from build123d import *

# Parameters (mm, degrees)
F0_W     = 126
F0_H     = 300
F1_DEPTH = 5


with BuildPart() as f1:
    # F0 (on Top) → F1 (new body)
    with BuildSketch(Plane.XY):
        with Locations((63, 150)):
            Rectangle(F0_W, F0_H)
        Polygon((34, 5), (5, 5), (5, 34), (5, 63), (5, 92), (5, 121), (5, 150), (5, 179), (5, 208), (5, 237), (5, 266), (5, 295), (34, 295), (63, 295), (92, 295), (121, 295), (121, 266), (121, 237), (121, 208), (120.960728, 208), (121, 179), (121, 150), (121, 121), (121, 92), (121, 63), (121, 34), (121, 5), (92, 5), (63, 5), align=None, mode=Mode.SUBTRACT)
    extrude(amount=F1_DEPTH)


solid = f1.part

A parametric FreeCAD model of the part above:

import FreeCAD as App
import Part
import Sketcher
from FreeCAD import Vector

doc = App.newDocument("Part")
body = doc.addObject("PartDesign::Body", "Body")

sketch1 = body.newObject("Sketcher::SketchObject", "Sketch")
sketch1.AttachmentSupport = (doc.getObject("XY_Plane"), [""])
sketch1.MapMode = "FlatFace"
sketch1.addGeometry(Part.LineSegment(Vector(0, 300, 0), Vector(0, 0, 0)), False)
sketch1.addGeometry(Part.LineSegment(Vector(0, 0, 0), Vector(126, 0, 0)), False)
sketch1.addGeometry(Part.LineSegment(Vector(126, 0, 0), Vector(126, 300, 0)), False)
sketch1.addGeometry(Part.LineSegment(Vector(126, 300, 0), Vector(0, 300, 0)), False)
sketch1.addGeometry(Part.LineSegment(Vector(121, 5, 0), Vector(5, 5, 0)), False)
sketch1.addGeometry(Part.LineSegment(Vector(5, 5, 0), Vector(5, 295, 0)), False)
sketch1.addGeometry(Part.LineSegment(Vector(5, 295, 0), Vector(121, 295, 0)), False)
sketch1.addGeometry(Part.LineSegment(Vector(121, 295, 0), Vector(121, 208, 0)), False)
sketch1.addGeometry(Part.LineSegment(Vector(121, 208, 0), Vector(120.960728, 208, 0)), False)
sketch1.addGeometry(Part.LineSegment(Vector(120.960728, 208, 0), Vector(121, 179, 0)), False)
sketch1.addGeometry(Part.LineSegment(Vector(121, 179, 0), Vector(121, 5, 0)), False)
sketch1.addConstraint(Sketcher.Constraint("Coincident", 0, 2, 1, 1))
sketch1.addConstraint(Sketcher.Constraint("Coincident", 1, 2, 2, 1))
sketch1.addConstraint(Sketcher.Constraint("Coincident", 2, 2, 3, 1))
sketch1.addConstraint(Sketcher.Constraint("Coincident", 3, 2, 0, 1))
sketch1.addConstraint(Sketcher.Constraint("Coincident", 4, 2, 5, 1))
sketch1.addConstraint(Sketcher.Constraint("Coincident", 5, 2, 6, 1))
sketch1.addConstraint(Sketcher.Constraint("Coincident", 6, 2, 7, 1))
sketch1.addConstraint(Sketcher.Constraint("Coincident", 7, 2, 8, 1))
sketch1.addConstraint(Sketcher.Constraint("Coincident", 8, 2, 9, 1))
sketch1.addConstraint(Sketcher.Constraint("Coincident", 9, 2, 10, 1))
sketch1.addConstraint(Sketcher.Constraint("Coincident", 10, 2, 4, 1))
sketch1.addConstraint(Sketcher.Constraint("Vertical", 0))
sketch1.addConstraint(Sketcher.Constraint("Horizontal", 1))
sketch1.addConstraint(Sketcher.Constraint("Vertical", 2))
sketch1.addConstraint(Sketcher.Constraint("Horizontal", 3))
sketch1.addConstraint(Sketcher.Constraint("Horizontal", 4))
sketch1.addConstraint(Sketcher.Constraint("Vertical", 5))
sketch1.addConstraint(Sketcher.Constraint("Horizontal", 6))
sketch1.addConstraint(Sketcher.Constraint("Vertical", 7))
sketch1.addConstraint(Sketcher.Constraint("Horizontal", 8))
sketch1.addConstraint(Sketcher.Constraint("Vertical", 10))
sketch1.addConstraint(Sketcher.Constraint("Coincident", 0, 2, -1, 1))
sketch1.addConstraint(Sketcher.Constraint("Vertical", 7, 2, 9, 2))
sketch1.addConstraint(Sketcher.Constraint("DistanceX", 1, 1, 1, 2, 126.0))
sketch1.addConstraint(Sketcher.Constraint("DistanceX", 4, 2, 4, 1, 116.0))
sketch1.addConstraint(Sketcher.Constraint("DistanceY", 0, 2, 0, 1, 300.0))
sketch1.addConstraint(Sketcher.Constraint("DistanceY", 5, 1, 5, 2, 290.0))
sketch1.addConstraint(Sketcher.Constraint("DistanceY", 7, 2, 7, 1, 87.0))
sketch1.addConstraint(Sketcher.Constraint("DistanceY", 10, 2, 10, 1, 174.0))
sketch1.addConstraint(Sketcher.Constraint("DistanceX", -1, 1, 4, 2, 5.0))
sketch1.addConstraint(Sketcher.Constraint("DistanceY", -1, 1, 4, 2, 5.0))
sketch1.addConstraint(Sketcher.Constraint("DistanceX", 8, 2, 8, 1, 0.039272))
pad1 = body.newObject("PartDesign::Pad", "Pad")
pad1.Profile = sketch1
pad1.Length = 5

doc.recompute()
